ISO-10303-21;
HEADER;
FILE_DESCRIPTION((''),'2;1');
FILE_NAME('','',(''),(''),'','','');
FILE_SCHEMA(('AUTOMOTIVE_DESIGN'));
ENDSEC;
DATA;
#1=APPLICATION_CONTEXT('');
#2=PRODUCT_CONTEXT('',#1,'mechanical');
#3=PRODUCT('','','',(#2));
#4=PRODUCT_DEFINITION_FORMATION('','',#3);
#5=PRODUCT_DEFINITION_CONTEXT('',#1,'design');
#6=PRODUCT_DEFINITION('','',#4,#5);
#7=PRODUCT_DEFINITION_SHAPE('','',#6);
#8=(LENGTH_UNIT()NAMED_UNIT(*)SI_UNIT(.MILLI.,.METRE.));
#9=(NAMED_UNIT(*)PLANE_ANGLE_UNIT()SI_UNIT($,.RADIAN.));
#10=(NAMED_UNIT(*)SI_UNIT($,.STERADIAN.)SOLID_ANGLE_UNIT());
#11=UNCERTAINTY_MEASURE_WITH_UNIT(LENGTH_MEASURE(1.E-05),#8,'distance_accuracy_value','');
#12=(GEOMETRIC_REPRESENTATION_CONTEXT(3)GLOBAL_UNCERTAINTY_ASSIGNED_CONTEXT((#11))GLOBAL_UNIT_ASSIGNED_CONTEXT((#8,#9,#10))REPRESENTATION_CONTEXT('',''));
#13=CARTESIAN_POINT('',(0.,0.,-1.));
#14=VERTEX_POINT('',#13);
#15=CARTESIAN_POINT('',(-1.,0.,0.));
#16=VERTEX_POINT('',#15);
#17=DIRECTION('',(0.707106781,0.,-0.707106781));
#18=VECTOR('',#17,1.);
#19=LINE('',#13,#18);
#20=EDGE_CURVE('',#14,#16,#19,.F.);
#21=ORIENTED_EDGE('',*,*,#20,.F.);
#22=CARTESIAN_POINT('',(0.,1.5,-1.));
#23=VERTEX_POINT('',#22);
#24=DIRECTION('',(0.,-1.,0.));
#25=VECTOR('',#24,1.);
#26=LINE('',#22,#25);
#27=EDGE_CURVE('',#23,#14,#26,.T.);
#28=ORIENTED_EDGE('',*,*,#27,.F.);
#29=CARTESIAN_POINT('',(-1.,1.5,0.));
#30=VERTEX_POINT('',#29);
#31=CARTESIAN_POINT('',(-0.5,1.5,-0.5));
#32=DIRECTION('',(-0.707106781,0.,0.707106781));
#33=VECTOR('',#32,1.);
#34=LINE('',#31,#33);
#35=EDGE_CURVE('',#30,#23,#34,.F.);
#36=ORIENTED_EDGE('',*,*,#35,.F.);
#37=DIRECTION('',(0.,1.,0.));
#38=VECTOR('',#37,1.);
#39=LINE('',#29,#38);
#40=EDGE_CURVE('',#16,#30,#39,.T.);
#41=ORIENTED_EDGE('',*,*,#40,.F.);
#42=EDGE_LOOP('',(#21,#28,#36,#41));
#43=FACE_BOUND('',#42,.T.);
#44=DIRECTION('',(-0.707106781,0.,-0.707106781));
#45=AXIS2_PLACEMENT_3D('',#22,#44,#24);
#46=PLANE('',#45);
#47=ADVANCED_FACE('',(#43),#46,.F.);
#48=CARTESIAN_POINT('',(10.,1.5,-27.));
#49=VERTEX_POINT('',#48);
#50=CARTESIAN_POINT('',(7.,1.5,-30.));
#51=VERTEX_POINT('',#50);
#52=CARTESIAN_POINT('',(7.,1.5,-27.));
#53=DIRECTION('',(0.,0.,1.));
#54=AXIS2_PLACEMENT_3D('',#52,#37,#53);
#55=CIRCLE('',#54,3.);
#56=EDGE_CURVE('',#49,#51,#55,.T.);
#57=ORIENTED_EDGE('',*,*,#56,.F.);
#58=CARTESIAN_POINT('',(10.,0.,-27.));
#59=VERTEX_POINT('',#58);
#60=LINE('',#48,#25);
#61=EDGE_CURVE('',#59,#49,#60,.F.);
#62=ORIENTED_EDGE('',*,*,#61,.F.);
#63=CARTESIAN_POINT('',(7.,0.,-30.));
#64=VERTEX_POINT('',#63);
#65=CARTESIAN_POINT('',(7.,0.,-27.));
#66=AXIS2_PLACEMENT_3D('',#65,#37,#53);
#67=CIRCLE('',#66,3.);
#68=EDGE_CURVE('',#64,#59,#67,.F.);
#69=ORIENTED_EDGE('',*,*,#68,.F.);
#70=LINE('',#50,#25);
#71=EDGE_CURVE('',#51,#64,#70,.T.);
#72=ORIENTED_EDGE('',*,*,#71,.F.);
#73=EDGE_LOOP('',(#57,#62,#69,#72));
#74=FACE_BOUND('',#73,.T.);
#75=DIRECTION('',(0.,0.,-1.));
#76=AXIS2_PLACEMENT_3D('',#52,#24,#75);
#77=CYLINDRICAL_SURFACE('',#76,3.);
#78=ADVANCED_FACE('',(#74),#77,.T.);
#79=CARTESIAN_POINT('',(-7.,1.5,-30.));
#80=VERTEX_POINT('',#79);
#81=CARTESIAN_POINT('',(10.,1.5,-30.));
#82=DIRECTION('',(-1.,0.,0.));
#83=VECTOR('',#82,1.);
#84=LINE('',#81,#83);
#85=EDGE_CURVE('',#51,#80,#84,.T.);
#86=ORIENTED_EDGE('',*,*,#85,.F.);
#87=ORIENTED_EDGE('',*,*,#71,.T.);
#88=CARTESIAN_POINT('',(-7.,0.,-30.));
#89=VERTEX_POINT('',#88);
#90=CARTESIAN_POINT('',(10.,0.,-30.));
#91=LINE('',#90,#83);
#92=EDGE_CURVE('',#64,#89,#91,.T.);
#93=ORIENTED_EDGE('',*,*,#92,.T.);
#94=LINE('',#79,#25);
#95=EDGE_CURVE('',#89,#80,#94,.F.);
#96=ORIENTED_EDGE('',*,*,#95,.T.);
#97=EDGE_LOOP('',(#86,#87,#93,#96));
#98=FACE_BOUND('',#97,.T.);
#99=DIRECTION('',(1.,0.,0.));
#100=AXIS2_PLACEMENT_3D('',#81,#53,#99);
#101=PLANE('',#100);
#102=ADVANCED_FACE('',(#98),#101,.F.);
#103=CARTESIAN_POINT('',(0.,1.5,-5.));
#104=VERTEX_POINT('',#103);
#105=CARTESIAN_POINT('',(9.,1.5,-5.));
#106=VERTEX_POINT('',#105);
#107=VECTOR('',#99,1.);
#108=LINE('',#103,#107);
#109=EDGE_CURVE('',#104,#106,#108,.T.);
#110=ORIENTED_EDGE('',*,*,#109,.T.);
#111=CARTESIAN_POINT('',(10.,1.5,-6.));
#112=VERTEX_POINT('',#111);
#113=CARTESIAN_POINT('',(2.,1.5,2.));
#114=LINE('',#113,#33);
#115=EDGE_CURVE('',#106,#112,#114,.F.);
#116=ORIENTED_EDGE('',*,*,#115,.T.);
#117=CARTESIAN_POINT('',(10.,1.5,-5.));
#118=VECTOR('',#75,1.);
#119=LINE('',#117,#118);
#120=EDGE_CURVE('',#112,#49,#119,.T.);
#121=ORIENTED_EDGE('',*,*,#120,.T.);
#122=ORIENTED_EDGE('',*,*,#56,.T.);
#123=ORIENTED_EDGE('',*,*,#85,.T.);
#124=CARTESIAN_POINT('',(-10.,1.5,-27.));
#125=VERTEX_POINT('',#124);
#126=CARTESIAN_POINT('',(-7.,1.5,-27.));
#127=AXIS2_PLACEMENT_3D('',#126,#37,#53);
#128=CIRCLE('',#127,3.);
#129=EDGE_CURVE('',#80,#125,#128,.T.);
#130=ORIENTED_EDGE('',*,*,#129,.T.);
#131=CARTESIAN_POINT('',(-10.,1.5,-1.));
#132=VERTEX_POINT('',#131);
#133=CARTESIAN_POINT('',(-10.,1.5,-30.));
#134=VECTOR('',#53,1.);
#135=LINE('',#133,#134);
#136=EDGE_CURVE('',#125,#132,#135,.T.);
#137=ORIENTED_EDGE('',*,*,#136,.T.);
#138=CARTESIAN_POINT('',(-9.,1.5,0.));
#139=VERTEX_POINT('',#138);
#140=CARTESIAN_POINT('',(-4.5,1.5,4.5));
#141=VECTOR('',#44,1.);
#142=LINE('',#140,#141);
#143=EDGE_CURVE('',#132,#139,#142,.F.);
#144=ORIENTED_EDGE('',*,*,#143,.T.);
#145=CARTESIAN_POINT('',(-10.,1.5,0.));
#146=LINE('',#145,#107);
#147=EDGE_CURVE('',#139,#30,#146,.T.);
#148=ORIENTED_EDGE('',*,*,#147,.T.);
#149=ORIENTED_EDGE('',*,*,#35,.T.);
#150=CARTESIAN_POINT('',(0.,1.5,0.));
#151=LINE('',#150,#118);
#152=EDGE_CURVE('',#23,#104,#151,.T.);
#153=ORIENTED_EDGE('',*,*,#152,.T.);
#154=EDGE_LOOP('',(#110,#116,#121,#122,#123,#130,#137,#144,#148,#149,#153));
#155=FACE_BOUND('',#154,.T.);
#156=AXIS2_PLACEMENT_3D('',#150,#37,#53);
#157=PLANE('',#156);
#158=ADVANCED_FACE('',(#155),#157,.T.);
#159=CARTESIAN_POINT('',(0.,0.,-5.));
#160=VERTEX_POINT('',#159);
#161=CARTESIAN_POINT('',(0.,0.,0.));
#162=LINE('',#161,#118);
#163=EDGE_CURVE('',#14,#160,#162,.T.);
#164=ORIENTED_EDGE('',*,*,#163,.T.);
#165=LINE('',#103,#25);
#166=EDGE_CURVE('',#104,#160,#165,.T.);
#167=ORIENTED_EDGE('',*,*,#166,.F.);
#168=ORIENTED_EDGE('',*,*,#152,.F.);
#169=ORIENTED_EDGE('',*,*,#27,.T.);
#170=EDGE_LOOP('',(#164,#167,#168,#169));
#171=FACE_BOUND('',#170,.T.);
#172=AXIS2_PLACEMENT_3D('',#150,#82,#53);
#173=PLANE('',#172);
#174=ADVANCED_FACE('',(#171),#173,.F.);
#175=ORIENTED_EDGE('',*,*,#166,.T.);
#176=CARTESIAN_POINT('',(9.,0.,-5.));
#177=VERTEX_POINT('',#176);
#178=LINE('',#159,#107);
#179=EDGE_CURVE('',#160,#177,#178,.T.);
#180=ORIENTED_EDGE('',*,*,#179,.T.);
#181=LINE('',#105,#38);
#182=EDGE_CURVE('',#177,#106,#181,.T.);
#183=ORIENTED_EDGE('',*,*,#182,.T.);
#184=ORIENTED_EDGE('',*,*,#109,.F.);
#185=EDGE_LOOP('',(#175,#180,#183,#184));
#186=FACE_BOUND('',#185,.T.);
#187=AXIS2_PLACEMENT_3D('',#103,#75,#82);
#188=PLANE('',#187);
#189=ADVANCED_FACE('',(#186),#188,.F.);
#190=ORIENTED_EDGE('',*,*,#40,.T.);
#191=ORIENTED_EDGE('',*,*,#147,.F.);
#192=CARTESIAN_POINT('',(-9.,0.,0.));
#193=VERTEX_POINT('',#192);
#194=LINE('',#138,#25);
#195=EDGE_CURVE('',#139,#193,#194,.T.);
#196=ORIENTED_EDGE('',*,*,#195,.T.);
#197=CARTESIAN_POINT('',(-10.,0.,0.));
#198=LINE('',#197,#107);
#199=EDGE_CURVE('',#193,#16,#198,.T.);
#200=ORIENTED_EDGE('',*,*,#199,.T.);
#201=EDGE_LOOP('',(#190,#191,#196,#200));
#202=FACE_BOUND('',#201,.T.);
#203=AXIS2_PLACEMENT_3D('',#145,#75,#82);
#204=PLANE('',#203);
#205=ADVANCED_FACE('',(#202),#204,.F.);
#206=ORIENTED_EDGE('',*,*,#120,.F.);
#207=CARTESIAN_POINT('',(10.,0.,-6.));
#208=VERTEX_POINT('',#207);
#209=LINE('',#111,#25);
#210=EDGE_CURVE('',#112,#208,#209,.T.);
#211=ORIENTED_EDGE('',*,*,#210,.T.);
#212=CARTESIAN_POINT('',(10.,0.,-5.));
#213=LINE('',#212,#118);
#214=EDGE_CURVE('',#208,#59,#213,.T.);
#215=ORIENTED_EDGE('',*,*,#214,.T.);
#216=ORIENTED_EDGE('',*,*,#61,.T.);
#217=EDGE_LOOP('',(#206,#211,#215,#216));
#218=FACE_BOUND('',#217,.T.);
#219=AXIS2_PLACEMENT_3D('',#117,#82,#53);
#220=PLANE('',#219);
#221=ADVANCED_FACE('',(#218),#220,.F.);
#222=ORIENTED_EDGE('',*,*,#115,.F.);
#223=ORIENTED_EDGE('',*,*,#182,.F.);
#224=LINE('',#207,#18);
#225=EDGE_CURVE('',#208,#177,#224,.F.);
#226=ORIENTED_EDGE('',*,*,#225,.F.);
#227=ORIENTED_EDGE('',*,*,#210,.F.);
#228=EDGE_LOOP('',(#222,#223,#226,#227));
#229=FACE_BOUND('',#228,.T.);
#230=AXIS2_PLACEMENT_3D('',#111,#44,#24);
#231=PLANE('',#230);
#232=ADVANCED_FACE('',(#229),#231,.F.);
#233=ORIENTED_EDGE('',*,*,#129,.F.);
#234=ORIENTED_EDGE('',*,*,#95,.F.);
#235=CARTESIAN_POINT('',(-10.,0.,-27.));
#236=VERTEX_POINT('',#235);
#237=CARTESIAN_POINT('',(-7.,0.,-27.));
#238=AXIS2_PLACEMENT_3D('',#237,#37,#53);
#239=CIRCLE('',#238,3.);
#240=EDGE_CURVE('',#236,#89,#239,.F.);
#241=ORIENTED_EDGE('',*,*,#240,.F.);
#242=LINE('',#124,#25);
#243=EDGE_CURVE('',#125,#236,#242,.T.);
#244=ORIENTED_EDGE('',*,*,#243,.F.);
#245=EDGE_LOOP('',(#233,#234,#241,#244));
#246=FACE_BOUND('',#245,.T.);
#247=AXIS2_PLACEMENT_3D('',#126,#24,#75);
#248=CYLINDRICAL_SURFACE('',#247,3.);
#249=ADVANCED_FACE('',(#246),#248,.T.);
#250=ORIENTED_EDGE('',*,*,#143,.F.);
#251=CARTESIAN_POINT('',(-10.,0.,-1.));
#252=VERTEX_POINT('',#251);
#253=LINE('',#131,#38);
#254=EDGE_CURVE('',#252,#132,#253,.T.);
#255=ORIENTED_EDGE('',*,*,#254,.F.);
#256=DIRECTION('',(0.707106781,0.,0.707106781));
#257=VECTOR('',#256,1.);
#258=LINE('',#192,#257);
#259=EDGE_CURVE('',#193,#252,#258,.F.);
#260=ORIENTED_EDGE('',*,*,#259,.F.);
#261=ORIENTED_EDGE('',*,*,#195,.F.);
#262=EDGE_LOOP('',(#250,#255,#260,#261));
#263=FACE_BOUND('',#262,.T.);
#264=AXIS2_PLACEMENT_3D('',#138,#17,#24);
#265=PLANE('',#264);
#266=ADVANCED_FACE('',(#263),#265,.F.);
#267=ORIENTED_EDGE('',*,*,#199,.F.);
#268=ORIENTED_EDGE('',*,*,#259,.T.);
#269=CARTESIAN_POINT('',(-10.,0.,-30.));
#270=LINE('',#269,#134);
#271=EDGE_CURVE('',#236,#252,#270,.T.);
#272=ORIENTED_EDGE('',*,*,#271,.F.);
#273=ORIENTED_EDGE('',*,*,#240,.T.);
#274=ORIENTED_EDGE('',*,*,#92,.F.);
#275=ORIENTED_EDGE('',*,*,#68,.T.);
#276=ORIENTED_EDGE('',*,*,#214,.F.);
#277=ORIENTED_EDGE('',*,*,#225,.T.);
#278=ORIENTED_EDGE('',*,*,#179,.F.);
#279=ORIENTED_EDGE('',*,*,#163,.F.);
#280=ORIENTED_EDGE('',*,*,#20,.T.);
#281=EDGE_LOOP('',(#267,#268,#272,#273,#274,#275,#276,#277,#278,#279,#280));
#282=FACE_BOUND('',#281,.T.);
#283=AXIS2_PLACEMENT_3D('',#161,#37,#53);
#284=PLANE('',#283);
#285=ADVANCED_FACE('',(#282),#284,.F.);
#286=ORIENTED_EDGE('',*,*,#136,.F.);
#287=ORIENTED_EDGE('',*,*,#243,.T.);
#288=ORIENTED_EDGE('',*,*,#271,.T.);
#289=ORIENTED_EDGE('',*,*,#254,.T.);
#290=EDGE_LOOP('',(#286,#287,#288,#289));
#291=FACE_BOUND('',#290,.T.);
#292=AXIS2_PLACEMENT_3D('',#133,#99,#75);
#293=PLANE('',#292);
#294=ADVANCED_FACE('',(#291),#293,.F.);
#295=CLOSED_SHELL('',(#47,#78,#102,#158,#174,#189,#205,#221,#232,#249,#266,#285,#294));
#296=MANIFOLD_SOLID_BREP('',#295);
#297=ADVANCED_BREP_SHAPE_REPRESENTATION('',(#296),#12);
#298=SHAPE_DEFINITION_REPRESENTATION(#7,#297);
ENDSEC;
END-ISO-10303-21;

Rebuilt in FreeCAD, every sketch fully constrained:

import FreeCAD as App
import Part
import Sketcher
from FreeCAD import Vector
Q = App.Units.Quantity


def edges_at(feature, points):
    """Names of the edges that pass closest to the given points."""
    edges = feature.Shape.Edges
    near = lambda p: min(range(len(edges)), key=lambda i: edges[i].distToShape(Part.Vertex(*p))[0])
    return sorted({f"Edge{near(p) + 1}" for p in points})

doc = App.newDocument("Part")
body = doc.addObject("PartDesign::Body", "Body")

sketch1 = body.newObject("Sketcher::SketchObject", "Sketch")
sketch1.AttachmentSupport = (doc.getObject("XZ_Plane"), [""])
sketch1.MapMode = "FlatFace"
sketch1.addGeometry([
    Part.LineSegment(Vector(0, 0, 0), Vector(0, -5, 0)),
    Part.LineSegment(Vector(0, -5, 0), Vector(10, -5, 0)),
    Part.LineSegment(Vector(10, -5, 0), Vector(10, -30, 0)),
    Part.LineSegment(Vector(10, -30, 0), Vector(-10, -30, 0)),
    Part.LineSegment(Vector(-10, -30, 0), Vector(-10, 0, 0)),
    Part.LineSegment(Vector(-10, 0, 0), Vector(0, 0, 0)),
], False)
sketch1.addConstraint([
    Sketcher.Constraint("Coincident", 0, 2, 1, 1),
    Sketcher.Constraint("Coincident", 1, 2, 2, 1),
    Sketcher.Constraint("Coincident", 2, 2, 3, 1),
    Sketcher.Constraint("Coincident", 3, 2, 4, 1),
    Sketcher.Constraint("Coincident", 4, 2, 5, 1),
    Sketcher.Constraint("Coincident", 5, 2, 0, 1),
    Sketcher.Constraint("Vertical", 0),
    Sketcher.Constraint("Horizontal", 1),
    Sketcher.Constraint("Vertical", 2),
    Sketcher.Constraint("Horizontal", 3),
    Sketcher.Constraint("Vertical", 4),
    Sketcher.Constraint("Horizontal", 5),
    Sketcher.Constraint("Coincident", 5, 2, -1, 1),
    Sketcher.Constraint("Equal", 1, 5),
    Sketcher.Constraint("DistanceX", 1, 1, 1, 2, Q("10 mm")),
    Sketcher.Constraint("DistanceY", 0, 2, 0, 1, Q("5 mm")),
    Sketcher.Constraint("DistanceY", 2, 2, 2, 1, Q("25 mm")),
])
pad1 = body.newObject("PartDesign::Pad", "Pad")
pad1.Profile = sketch1
pad1.Length = 1.5
pad1.Reversed = True
doc.recompute()

fillet = body.newObject("PartDesign::Fillet", "Fillet")
fillet.Base = (pad1, edges_at(pad1, [(-10, 0.75, -30), (10, 0.75, -30)]))
fillet.Radius = 3
doc.recompute()

chamfer = body.newObject("PartDesign::Chamfer", "Chamfer")
chamfer.Base = (fillet, edges_at(fillet, [(-10, 0.75, 0), (10, 0.75, -5), (0, 0.75, 0)]))
chamfer.Size = 1

doc.recompute()
